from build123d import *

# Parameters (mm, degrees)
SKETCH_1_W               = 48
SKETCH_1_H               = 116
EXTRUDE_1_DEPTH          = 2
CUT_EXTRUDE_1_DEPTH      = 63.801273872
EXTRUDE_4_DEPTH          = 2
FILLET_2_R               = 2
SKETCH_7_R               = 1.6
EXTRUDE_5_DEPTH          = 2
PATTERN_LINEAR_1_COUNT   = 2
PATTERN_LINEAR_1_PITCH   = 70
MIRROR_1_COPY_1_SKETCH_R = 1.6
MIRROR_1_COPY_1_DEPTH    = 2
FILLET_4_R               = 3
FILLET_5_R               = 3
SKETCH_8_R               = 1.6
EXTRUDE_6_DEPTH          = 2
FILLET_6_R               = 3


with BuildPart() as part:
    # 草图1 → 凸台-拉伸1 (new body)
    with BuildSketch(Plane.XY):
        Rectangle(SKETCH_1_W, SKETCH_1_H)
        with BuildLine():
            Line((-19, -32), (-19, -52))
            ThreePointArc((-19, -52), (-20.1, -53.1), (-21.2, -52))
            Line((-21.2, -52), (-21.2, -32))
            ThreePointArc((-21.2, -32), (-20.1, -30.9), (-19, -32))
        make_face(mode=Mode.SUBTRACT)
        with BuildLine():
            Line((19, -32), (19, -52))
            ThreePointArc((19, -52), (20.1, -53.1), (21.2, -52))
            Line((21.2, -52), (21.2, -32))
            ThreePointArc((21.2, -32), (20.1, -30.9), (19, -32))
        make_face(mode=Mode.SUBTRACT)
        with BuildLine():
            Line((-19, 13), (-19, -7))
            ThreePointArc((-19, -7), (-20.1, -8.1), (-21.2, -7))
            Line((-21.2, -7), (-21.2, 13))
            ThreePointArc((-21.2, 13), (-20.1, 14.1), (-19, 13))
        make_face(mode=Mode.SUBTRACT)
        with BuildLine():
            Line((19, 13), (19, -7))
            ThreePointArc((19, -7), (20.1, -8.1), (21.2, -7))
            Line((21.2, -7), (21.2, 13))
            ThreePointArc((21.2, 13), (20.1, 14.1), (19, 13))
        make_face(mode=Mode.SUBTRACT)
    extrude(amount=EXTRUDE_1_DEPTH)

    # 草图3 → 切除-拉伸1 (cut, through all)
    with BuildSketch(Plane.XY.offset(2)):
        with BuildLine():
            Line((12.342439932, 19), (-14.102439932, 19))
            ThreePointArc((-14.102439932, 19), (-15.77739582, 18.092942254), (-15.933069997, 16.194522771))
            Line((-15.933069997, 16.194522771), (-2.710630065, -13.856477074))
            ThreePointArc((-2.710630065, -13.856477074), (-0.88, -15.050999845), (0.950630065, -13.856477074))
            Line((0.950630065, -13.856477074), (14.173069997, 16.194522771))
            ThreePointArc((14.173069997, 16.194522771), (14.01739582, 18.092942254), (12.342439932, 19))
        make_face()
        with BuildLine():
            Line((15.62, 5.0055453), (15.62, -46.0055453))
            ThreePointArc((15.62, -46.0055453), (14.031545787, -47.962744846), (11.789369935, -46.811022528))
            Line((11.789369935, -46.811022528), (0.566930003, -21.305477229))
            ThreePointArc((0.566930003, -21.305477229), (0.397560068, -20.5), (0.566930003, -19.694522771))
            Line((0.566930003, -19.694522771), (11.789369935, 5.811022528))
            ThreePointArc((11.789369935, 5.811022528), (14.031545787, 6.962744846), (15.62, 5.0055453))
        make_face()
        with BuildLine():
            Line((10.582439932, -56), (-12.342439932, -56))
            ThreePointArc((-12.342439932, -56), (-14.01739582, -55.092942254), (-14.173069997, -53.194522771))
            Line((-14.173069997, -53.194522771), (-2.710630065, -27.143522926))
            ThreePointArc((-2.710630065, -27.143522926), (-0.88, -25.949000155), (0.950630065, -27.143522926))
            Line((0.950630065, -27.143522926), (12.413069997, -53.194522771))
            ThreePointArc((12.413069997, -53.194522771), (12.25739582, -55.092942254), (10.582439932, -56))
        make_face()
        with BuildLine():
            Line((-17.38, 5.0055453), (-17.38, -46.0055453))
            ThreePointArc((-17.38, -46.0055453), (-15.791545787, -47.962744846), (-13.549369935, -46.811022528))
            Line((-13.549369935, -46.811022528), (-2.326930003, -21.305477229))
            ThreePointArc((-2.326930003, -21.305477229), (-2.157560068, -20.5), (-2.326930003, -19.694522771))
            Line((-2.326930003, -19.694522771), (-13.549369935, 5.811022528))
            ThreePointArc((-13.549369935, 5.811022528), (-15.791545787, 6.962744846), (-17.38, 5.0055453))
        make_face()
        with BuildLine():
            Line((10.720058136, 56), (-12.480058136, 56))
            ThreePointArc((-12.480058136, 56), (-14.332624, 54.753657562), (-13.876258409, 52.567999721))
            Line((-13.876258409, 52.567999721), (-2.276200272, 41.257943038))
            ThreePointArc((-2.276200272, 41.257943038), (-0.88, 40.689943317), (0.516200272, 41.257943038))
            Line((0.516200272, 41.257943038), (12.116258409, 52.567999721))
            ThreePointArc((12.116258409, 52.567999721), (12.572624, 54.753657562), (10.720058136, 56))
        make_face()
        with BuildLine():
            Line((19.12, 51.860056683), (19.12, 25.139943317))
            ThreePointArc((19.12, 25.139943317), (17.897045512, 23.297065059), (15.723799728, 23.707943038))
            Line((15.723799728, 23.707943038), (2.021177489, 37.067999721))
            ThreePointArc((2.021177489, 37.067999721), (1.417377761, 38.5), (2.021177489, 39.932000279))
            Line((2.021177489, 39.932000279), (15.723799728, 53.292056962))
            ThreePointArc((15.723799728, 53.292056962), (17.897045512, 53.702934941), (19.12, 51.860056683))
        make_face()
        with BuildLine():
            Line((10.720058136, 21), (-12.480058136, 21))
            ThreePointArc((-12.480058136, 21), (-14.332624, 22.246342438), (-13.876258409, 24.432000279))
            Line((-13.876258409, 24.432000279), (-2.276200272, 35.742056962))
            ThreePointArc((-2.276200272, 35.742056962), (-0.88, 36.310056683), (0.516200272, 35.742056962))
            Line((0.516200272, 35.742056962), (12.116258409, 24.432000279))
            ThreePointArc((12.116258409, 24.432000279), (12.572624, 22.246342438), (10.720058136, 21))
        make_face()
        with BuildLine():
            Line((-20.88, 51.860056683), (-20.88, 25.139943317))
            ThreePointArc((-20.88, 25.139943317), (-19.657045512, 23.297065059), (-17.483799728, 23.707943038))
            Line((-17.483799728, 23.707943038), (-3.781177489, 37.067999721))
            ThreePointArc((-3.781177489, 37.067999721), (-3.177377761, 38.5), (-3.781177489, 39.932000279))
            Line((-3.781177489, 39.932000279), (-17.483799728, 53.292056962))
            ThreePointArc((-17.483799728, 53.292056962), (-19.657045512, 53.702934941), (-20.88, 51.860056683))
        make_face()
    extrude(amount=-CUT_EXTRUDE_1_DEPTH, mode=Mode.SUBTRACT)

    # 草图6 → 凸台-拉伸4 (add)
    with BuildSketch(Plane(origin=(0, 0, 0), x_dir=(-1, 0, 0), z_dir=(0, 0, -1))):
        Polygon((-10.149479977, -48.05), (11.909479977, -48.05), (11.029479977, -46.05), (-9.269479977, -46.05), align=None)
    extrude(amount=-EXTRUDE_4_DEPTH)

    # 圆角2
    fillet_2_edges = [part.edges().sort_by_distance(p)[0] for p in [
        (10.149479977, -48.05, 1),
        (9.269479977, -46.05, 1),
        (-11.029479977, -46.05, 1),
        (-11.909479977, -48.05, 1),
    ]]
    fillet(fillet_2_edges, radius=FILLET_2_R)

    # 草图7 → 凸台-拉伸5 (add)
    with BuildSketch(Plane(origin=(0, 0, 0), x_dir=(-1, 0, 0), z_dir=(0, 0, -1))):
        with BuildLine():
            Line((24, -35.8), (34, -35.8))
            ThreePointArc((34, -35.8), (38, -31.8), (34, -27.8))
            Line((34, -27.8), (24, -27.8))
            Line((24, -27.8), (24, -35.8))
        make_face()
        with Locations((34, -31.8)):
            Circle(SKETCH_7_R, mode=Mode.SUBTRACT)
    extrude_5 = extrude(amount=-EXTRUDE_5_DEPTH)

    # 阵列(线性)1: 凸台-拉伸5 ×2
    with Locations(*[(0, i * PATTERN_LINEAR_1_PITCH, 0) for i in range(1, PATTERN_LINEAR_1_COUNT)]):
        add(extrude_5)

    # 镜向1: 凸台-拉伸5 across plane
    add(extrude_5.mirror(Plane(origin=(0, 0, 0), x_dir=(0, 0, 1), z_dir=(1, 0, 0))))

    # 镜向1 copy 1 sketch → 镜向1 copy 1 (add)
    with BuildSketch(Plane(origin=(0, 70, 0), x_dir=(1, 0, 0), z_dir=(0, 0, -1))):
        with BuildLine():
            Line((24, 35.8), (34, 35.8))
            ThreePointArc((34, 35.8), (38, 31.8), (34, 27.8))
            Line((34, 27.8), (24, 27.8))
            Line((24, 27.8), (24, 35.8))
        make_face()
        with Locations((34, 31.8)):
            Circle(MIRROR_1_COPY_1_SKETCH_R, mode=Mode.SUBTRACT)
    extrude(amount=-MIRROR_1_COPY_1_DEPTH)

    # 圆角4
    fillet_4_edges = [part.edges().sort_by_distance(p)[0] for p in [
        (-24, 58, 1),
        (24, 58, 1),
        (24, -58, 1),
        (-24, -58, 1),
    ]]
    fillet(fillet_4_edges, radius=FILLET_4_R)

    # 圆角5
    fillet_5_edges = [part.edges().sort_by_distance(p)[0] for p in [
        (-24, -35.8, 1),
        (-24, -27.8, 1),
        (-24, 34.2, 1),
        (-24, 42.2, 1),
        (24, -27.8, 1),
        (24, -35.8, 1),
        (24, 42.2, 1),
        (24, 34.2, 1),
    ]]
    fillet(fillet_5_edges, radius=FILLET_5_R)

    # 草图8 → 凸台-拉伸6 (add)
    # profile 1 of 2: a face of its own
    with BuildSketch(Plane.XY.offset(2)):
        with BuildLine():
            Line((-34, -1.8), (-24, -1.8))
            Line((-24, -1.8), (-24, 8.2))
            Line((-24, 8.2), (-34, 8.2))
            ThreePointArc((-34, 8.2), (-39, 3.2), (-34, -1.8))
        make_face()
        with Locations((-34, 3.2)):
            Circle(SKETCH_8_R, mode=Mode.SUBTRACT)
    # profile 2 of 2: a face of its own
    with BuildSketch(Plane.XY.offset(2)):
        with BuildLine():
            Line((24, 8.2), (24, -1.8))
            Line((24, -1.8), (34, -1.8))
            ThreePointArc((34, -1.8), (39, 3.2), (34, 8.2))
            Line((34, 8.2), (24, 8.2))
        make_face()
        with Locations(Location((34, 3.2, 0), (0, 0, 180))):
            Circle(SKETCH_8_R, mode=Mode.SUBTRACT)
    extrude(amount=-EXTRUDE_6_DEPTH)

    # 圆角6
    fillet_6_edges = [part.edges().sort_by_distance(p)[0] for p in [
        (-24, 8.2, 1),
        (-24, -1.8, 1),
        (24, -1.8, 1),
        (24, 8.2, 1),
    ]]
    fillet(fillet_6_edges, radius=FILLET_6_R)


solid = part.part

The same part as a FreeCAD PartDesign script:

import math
import FreeCAD as App
import Part
import Sketcher
from FreeCAD import Vector


def edges_at(feature, points):
    """Names of the edges that pass closest to the given points."""
    edges = feature.Shape.Edges
    near = lambda p: min(range(len(edges)), key=lambda i: edges[i].distToShape(Part.Vertex(*p))[0])
    return sorted({f"Edge{near(p) + 1}" for p in points})

doc = App.newDocument("Part")
body = doc.addObject("PartDesign::Body", "Body")

# Sketch on XY plane
sketch1 = body.newObject("Sketcher::SketchObject", "Sketch")
sketch1.AttachmentSupport = (doc.getObject("XY_Plane"), [""])
sketch1.MapMode = "FlatFace"
sketch1.addGeometry([
    Part.LineSegment(Vector(-24, 58, 0), Vector(-24, -58, 0)),  # 0
    Part.LineSegment(Vector(-24, -58, 0), Vector(24, -58, 0)),  # 1
    Part.LineSegment(Vector(24, -58, 0), Vector(24, 58, 0)),  # 2
    Part.LineSegment(Vector(24, 58, 0), Vector(-24, 58, 0)),  # 3
    Part.ArcOfCircle(Part.Circle(Vector(-20.1, -32, 0), Vector(0, 0, 1), 1.1), math.radians(0), math.radians(180)),  # 4
    Part.LineSegment(Vector(-19, -32, 0), Vector(-19, -52, 0)),  # 5
    Part.ArcOfCircle(Part.Circle(Vector(-20.1, -52, 0), Vector(0, 0, 1), 1.1), math.radians(180), math.radians(360)),  # 6
    Part.LineSegment(Vector(-21.2, -52, 0), Vector(-21.2, -32, 0)),  # 7
    Part.LineSegment(Vector(19, -52, 0), Vector(19, -32, 0)),  # 8
    Part.ArcOfCircle(Part.Circle(Vector(20.1, -32, 0), Vector(0, 0, 1), 1.1), math.radians(0), math.radians(180)),  # 9
    Part.LineSegment(Vector(21.2, -32, 0), Vector(21.2, -52, 0)),  # 10
    Part.ArcOfCircle(Part.Circle(Vector(20.1, -52, 0), Vector(0, 0, 1), 1.1), math.radians(180), math.radians(360)),  # 11
    Part.ArcOfCircle(Part.Circle(Vector(-20.1, 13, 0), Vector(0, 0, 1), 1.1), math.radians(0), math.radians(180)),  # 12
    Part.LineSegment(Vector(-19, 13, 0), Vector(-19, -7, 0)),  # 13
    Part.ArcOfCircle(Part.Circle(Vector(-20.1, -7, 0), Vector(0, 0, 1), 1.1), math.radians(180), math.radians(360)),  # 14
    Part.LineSegment(Vector(-21.2, -7, 0), Vector(-21.2, 13, 0)),  # 15
    Part.LineSegment(Vector(19, -7, 0), Vector(19, 13, 0)),  # 16
    Part.ArcOfCircle(Part.Circle(Vector(20.1, 13, 0), Vector(0, 0, 1), 1.1), math.radians(0), math.radians(180)),  # 17
    Part.LineSegment(Vector(21.2, 13, 0), Vector(21.2, -7, 0)),  # 18
    Part.ArcOfCircle(Part.Circle(Vector(20.1, -7, 0), Vector(0, 0, 1), 1.1), math.radians(180), math.radians(360)),  # 19
], False)
sketch1.addConstraint([
    Sketcher.Constraint("Coincident", 0, 2, 1, 1),
    Sketcher.Constraint("Coincident", 1, 2, 2, 1),
    Sketcher.Constraint("Coincident", 2, 2, 3, 1),
    Sketcher.Constraint("Coincident", 3, 2, 0, 1),
    Sketcher.Constraint("Tangent", 4, 1, 5, 1),
    Sketcher.Constraint("Tangent", 5, 2, 6, 2),
    Sketcher.Constraint("Tangent", 6, 1, 7, 1),
    Sketcher.Constraint("Tangent", 7, 2, 4, 2),
    Sketcher.Constraint("Tangent", 8, 2, 9, 2),
    Sketcher.Constraint("Tangent", 9, 1, 10, 1),
    Sketcher.Constraint("Tangent", 10, 2, 11, 2),
    Sketcher.Constraint("Tangent", 11, 1, 8, 1),
    Sketcher.Constraint("Tangent", 12, 1, 13, 1),
    Sketcher.Constraint("Tangent", 13, 2, 14, 2),
    Sketcher.Constraint("Tangent", 14, 1, 15, 1),
    Sketcher.Constraint("Tangent", 15, 2, 12, 2),
    Sketcher.Constraint("Tangent", 16, 2, 17, 2),
    Sketcher.Constraint("Tangent", 17, 1, 18, 1),
    Sketcher.Constraint("Tangent", 18, 2, 19, 2),
    Sketcher.Constraint("Tangent", 19, 1, 16, 1),
    Sketcher.Constraint("Vertical", 0),
    Sketcher.Constraint("Horizontal", 1),
    Sketcher.Constraint("Vertical", 2),
    Sketcher.Constraint("Horizontal", 3),
    Sketcher.Constraint("Vertical", 5),
    Sketcher.Constraint("Vertical", 7),
    Sketcher.Constraint("Vertical", 8),
    Sketcher.Constraint("Vertical", 10),
    Sketcher.Constraint("Vertical", 13),
    Sketcher.Constraint("Vertical", 15),
    Sketcher.Constraint("Vertical", 16),
    Sketcher.Constraint("Vertical", 18),
    Sketcher.Constraint("Equal", 6, 9),
    Sketcher.Constraint("Equal", 11, 12),
    Sketcher.Constraint("Equal", 14, 17),
    Sketcher.Constraint("Symmetric", 0, 2, 2, 2, -1, 1),
    Sketcher.Constraint("Symmetric", 4, 3, 9, 3, -2),
    Sketcher.Constraint("Symmetric", 12, 3, 17, 3, -2),
    Sketcher.Constraint("Horizontal", 6, 3, 11, 3),
    Sketcher.Constraint("Horizontal", 14, 3, 19, 3),
    Sketcher.Constraint("Vertical", 6, 3, 12, 3),
    Sketcher.Constraint("Equal", 10, 13),
    Sketcher.Constraint("Radius", 4, 1.1),
    Sketcher.Constraint("DistanceX", 1, 1, 1, 2, 48.0),
    Sketcher.Constraint("DistanceY", 0, 2, 0, 1, 116.0),
    Sketcher.Constraint("DistanceY", 5, 2, 5, 1, 20.0),
    Sketcher.Constraint("DistanceY", 4, 3, -1, 1, 32.0),
    Sketcher.Constraint("DistanceY", -1, 1, 12, 3, 13.0),
    Sketcher.Constraint("DistanceX", 4, 1, -1, 1, 19.0),
])
pad1 = body.newObject("PartDesign::Pad", "Pad")
pad1.Profile = sketch1
pad1.Length = 2

# Sketch on XY plane
sketch2 = body.newObject("Sketcher::SketchObject", "Sketch001")
sketch2.AttachmentSupport = (doc.getObject("XY_Plane"), [""])
sketch2.MapMode = "FlatFace"
sketch2.AttachmentOffset = App.Placement(Vector(0, 0, 2), App.Rotation())
sketch2.addGeometry([
    Part.LineSegment(Vector(12.3, 19, 0), Vector(-14.1, 19, 0)),  # 0
    Part.ArcOfCircle(Part.Circle(Vector(-14.1, 17, 0), Vector(0, 0, 1), 2), math.radians(90), math.radians(204)),  # 1
    Part.LineSegment(Vector(-15.9, 16.2, 0), Vector(-2.7, -13.9, 0)),  # 2
    Part.ArcOfCircle(Part.Circle(Vector(-0.9, -13.1, 0), Vector(0, 0, 1), 2), math.radians(-156), math.radians(-24)),  # 3
    Part.LineSegment(Vector(1, -13.9, 0), Vector(14.2, 16.2, 0)),  # 4
    Part.ArcOfCircle(Part.Circle(Vector(12.3, 17, 0), Vector(0, 0, 1), 2), math.radians(-24), math.radians(90)),  # 5
    Part.LineSegment(Vector(15.6, -46, 0), Vector(15.6, 5, 0)),  # 6
    Part.ArcOfCircle(Part.Circle(Vector(13.6, 5, 0), Vector(0, 0, 1), 2), math.radians(0), math.radians(156)),  # 7
    Part.LineSegment(Vector(11.8, 5.8, 0), Vector(0.6, -19.7, 0)),  # 8
    Part.ArcOfCircle(Part.Circle(Vector(2.4, -20.5, 0), Vector(0, 0, 1), 2), math.radians(156), math.radians(204)),  # 9
    Part.LineSegment(Vector(0.6, -21.3, 0), Vector(11.8, -46.8, 0)),  # 10
    Part.ArcOfCircle(Part.Circle(Vector(13.6, -46, 0), Vector(0, 0, 1), 2), math.radians(-156), math.radians(0)),  # 11
    Part.LineSegment(Vector(-12.3, -56, 0), Vector(10.6, -56, 0)),  # 12
    Part.ArcOfCircle(Part.Circle(Vector(10.6, -54, 0), Vector(0, 0, 1), 2), math.radians(-90), math.radians(24)),  # 13
    Part.LineSegment(Vector(12.4, -53.2, 0), Vector(1, -27.1, 0)),  # 14
    Part.ArcOfCircle(Part.Circle(Vector(-0.9, -27.9, 0), Vector(0, 0, 1), 2), math.radians(24), math.radians(156)),  # 15
    Part.LineSegment(Vector(-2.7, -27.1, 0), Vector(-14.2, -53.2, 0)),  # 16
    Part.ArcOfCircle(Part.Circle(Vector(-12.3, -54, 0), Vector(0, 0, 1), 2), math.radians(156), math.radians(270)),  # 17
    Part.LineSegment(Vector(-17.4, 5, 0), Vector(-17.4, -46, 0)),  # 18
    Part.ArcOfCircle(Part.Circle(Vector(-15.4, -46, 0), Vector(0, 0, 1), 2), math.radians(-180), math.radians(-24)),  # 19
    Part.LineSegment(Vector(-13.5, -46.8, 0), Vector(-2.3, -21.3, 0)),  # 20
    Part.ArcOfCircle(Part.Circle(Vector(-4.2, -20.5, 0), Vector(0, 0, 1), 2), math.radians(-24), math.radians(24)),  # 21
    Part.LineSegment(Vector(-2.3, -19.7, 0), Vector(-13.5, 5.8, 0)),  # 22
    Part.ArcOfCircle(Part.Circle(Vector(-15.4, 5, 0), Vector(0, 0, 1), 2), math.radians(24), math.radians(180)),  # 23
    Part.LineSegment(Vector(10.7, 56, 0), Vector(-12.5, 56, 0)),  # 24
    Part.ArcOfCircle(Part.Circle(Vector(-12.5, 54, 0), Vector(0, 0, 1), 2), math.radians(90), math.radians(226)),  # 25
    Part.LineSegment(Vector(-13.9, 52.6, 0), Vector(-2.3, 41.3, 0)),  # 26
    Part.ArcOfCircle(Part.Circle(Vector(-0.9, 42.7, 0), Vector(0, 0, 1), 2), math.radians(-134), math.radians(-46)),  # 27
    Part.LineSegment(Vector(0.5, 41.3, 0), Vector(12.1, 52.6, 0)),  # 28
    Part.ArcOfCircle(Part.Circle(Vector(10.7, 54, 0), Vector(0, 0, 1), 2), math.radians(-46), math.radians(90)),  # 29
    Part.LineSegment(Vector(19.1, 25.1, 0), Vector(19.1, 51.9, 0)),  # 30
    Part.ArcOfCircle(Part.Circle(Vector(17.1, 51.9, 0), Vector(0, 0, 1), 2), math.radians(0), math.radians(134)),  # 31
    Part.LineSegment(Vector(15.7, 53.3, 0), Vector(2, 39.9, 0)),  # 32
    Part.ArcOfCircle(Part.Circle(Vector(3.4, 38.5, 0), Vector(0, 0, 1), 2), math.radians(134), math.radians(226)),  # 33
    Part.LineSegment(Vector(2, 37.1, 0), Vector(15.7, 23.7, 0)),  # 34
    Part.ArcOfCircle(Part.Circle(Vector(17.1, 25.1, 0), Vector(0, 0, 1), 2), math.radians(-134), math.radians(0)),  # 35
    Part.LineSegment(Vector(-12.5, 21, 0), Vector(10.7, 21, 0)),  # 36
    Part.ArcOfCircle(Part.Circle(Vector(10.7, 23, 0), Vector(0, 0, 1), 2), math.radians(-90), math.radians(46)),  # 37
    Part.LineSegment(Vector(12.1, 24.4, 0), Vector(0.5, 35.7, 0)),  # 38
    Part.ArcOfCircle(Part.Circle(Vector(-0.9, 34.3, 0), Vector(0, 0, 1), 2), math.radians(46), math.radians(134)),  # 39
    Part.LineSegment(Vector(-2.3, 35.7, 0), Vector(-13.9, 24.4, 0)),  # 40
    Part.ArcOfCircle(Part.Circle(Vector(-12.5, 23, 0), Vector(0, 0, 1), 2), math.radians(134), math.radians(270)),  # 41
    Part.LineSegment(Vector(-20.9, 51.9, 0), Vector(-20.9, 25.1, 0)),  # 42
    Part.ArcOfCircle(Part.Circle(Vector(-18.9, 25.1, 0), Vector(0, 0, 1), 2), math.radians(180), math.radians(314)),  # 43
    Part.LineSegment(Vector(-17.5, 23.7, 0), Vector(-3.8, 37.1, 0)),  # 44
    Part.ArcOfCircle(Part.Circle(Vector(-5.2, 38.5, 0), Vector(0, 0, 1), 2), math.radians(-46), math.radians(46)),  # 45
    Part.LineSegment(Vector(-3.8, 39.9, 0), Vector(-17.5, 53.3, 0)),  # 46
    Part.ArcOfCircle(Part.Circle(Vector(-18.9, 51.9, 0), Vector(0, 0, 1), 2), math.radians(46), math.radians(180)),  # 47
], False)
sketch2.addConstraint([
    Sketcher.Constraint("Tangent", 0, 2, 1, 1),
    Sketcher.Constraint("Tangent", 1, 2, 2, 1),
    Sketcher.Constraint("Tangent", 2, 2, 3, 1),
    Sketcher.Constraint("Tangent", 3, 2, 4, 1),
    Sketcher.Constraint("Tangent", 4, 2, 5, 1),
    Sketcher.Constraint("Tangent", 5, 2, 0, 1),
    Sketcher.Constraint("Tangent", 6, 2, 7, 1),
    Sketcher.Constraint("Tangent", 7, 2, 8, 1),
    Sketcher.Constraint("Tangent", 8, 2, 9, 1),
    Sketcher.Constraint("Tangent", 9, 2, 10, 1),
    Sketcher.Constraint("Tangent", 10, 2, 11, 1),
    Sketcher.Constraint("Tangent", 11, 2, 6, 1),
    Sketcher.Constraint("Tangent", 12, 2, 13, 1),
    Sketcher.Constraint("Tangent", 13, 2, 14, 1),
    Sketcher.Constraint("Tangent", 14, 2, 15, 1),
    Sketcher.Constraint("Tangent", 15, 2, 16, 1),
    Sketcher.Constraint("Tangent", 16, 2, 17, 1),
    Sketcher.Constraint("Tangent", 17, 2, 12, 1),
    Sketcher.Constraint("Tangent", 18, 2, 19, 1),
    Sketcher.Constraint("Tangent", 19, 2, 20, 1),
    Sketcher.Constraint("Tangent", 20, 2, 21, 1),
    Sketcher.Constraint("Tangent", 21, 2, 22, 1),
    Sketcher.Constraint("Tangent", 22, 2, 23, 1),
    Sketcher.Constraint("Tangent", 23, 2, 18, 1),
    Sketcher.Constraint("Tangent", 24, 2, 25, 1),
    Sketcher.Constraint("Tangent", 25, 2, 26, 1),
    Sketcher.Constraint("Tangent", 26, 2, 27, 1),
    Sketcher.Constraint("Tangent", 27, 2, 28, 1),
    Sketcher.Constraint("Tangent", 28, 2, 29, 1),
    Sketcher.Constraint("Tangent", 29, 2, 24, 1),
    Sketcher.Constraint("Tangent", 30, 2, 31, 1),
    Sketcher.Constraint("Tangent", 31, 2, 32, 1),
    Sketcher.Constraint("Tangent", 32, 2, 33, 1),
    Sketcher.Constraint("Tangent", 33, 2, 34, 1),
    Sketcher.Constraint("Tangent", 34, 2, 35, 1),
    Sketcher.Constraint("Tangent", 35, 2, 30, 1),
    Sketcher.Constraint("Tangent", 36, 2, 37, 1),
    Sketcher.Constraint("Tangent", 37, 2, 38, 1),
    Sketcher.Constraint("Tangent", 38, 2, 39, 1),
    Sketcher.Constraint("Tangent", 39, 2, 40, 1),
    Sketcher.Constraint("Tangent", 40, 2, 41, 1),
    Sketcher.Constraint("Tangent", 41, 2, 36, 1),
    Sketcher.Constraint("Tangent", 42, 2, 43, 1),
    Sketcher.Constraint("Tangent", 43, 2, 44, 1),
    Sketcher.Constraint("Tangent", 44, 2, 45, 1),
    Sketcher.Constraint("Tangent", 45, 2, 46, 1),
    Sketcher.Constraint("Tangent", 46, 2, 47, 1),
    Sketcher.Constraint("Tangent", 47, 2, 42, 1),
    Sketcher.Constraint("Horizontal", 0),
    Sketcher.Constraint("Vertical", 6),
    Sketcher.Constraint("Horizontal", 12),
    Sketcher.Constraint("Vertical", 18),
    Sketcher.Constraint("Horizontal", 24),
    Sketcher.Constraint("Vertical", 30),
    Sketcher.Constraint("Horizontal", 36),
    Sketcher.Constraint("Vertical", 42),
    Sketcher.Constraint("Equal", 1, 3),
    Sketcher.Constraint("Equal", 3, 5),
    Sketcher.Constraint("Equal", 5, 7),
    Sketcher.Constraint("Equal", 7, 9),
    Sketcher.Constraint("Equal", 9, 11),
    Sketcher.Constraint("Equal", 11, 13),
    Sketcher.Constraint("Equal", 13, 15),
    Sketcher.Constraint("Equal", 15, 17),
    Sketcher.Constraint("Equal", 17, 19),
    Sketcher.Constraint("Equal", 19, 21),
    Sketcher.Constraint("Equal", 21, 23),
    Sketcher.Constraint("Equal", 23, 25),
    Sketcher.Constraint("Equal", 25, 27),
    Sketcher.Constraint("Equal", 27, 29),
    Sketcher.Constraint("Equal", 29, 31),
    Sketcher.Constraint("Equal", 31, 33),
    Sketcher.Constraint("Equal", 33, 35),
    Sketcher.Constraint("Equal", 35, 37),
    Sketcher.Constraint("Equal", 37, 39),
    Sketcher.Constraint("Equal", 39, 41),
    Sketcher.Constraint("Equal", 41, 43),
    Sketcher.Constraint("Equal", 43, 45),
    Sketcher.Constraint("Equal", 45, 47),
    Sketcher.Constraint("Parallel", 4, 8),
    Sketcher.Constraint("Parallel", 2, 10),
    Sketcher.Constraint("Parallel", 10, 14),
    Sketcher.Constraint("Parallel", 8, 16),
    Sketcher.Constraint("Parallel", 16, 20),
    Sketcher.Constraint("Parallel", 14, 22),
    Sketcher.Constraint("Parallel", 28, 32),
    Sketcher.Constraint("Parallel", 26, 34),
    Sketcher.Constraint("Parallel", 34, 38),
    Sketcher.Constraint("Parallel", 32, 40),
    Sketcher.Constraint("Parallel", 40, 44),
    Sketcher.Constraint("Parallel", 38, 46),
    Sketcher.Constraint("Horizontal", 11, 3, 19, 3),
    Sketcher.Constraint("Horizontal", 9, 3, 21, 3),
    Sketcher.Constraint("Horizontal", 7, 3, 23, 3),
    Sketcher.Constraint("Horizontal", 35, 3, 43, 3),
    Sketcher.Constraint("Horizontal", 33, 3, 45, 3),
    Sketcher.Constraint("Horizontal", 31, 3, 47, 3),
    Sketcher.Constraint("Vertical", 3, 3, 15, 3),
    Sketcher.Constraint("Vertical", 15, 3, 27, 3),
    Sketcher.Constraint("Vertical", 29, 3, 37, 3),
    Sketcher.Constraint("Vertical", 27, 3, 39, 3),
    Sketcher.Constraint("Radius", 1, 2.0),
    Sketcher.Constraint("DistanceY", -1, 1, 1, 3, 17.0),
    Sketcher.Constraint("DistanceY", 13, 3, -1, 1, 54.0),
    Sketcher.Constraint("DistanceY", -1, 1, 25, 3, 54.0),
    Sketcher.Constraint("DistanceY", -1, 1, 37, 3, 23.0),
    Sketcher.Constraint("DistanceY", 9, 3, -1, 1, 20.5),
    Sketcher.Constraint("DistanceY", -1, 1, 33, 3, 38.5),
    Sketcher.Constraint("DistanceX", 3, 3, -1, 1, 0.88),
    Sketcher.Constraint("DistanceX", -1, 1, 7, 3, 13.62),
    Sketcher.Constraint("DistanceX", 19, 3, -1, 1, 15.38),
    Sketcher.Constraint("DistanceX", -1, 1, 31, 3, 17.12),
    Sketcher.Constraint("DistanceX", 43, 3, -1, 1, 18.88),
    Sketcher.Constraint("DistanceY", 3, 3, -1, 1, 13.051),
    Sketcher.Constraint("DistanceY", 15, 3, -1, 1, 27.949),
    Sketcher.Constraint("DistanceY", -1, 1, 25, 2, 52.568),
    Sketcher.Constraint("DistanceX", 0, 2, 0, 1, 26.44488),
    Sketcher.Constraint("DistanceY", 6, 1, 6, 2, 51.011091),
    Sketcher.Constraint("DistanceX", 24, 2, 24, 1, 23.200116),
    Sketcher.Constraint("DistanceY", 30, 1, 30, 2, 26.720113),
])
pocket1 = body.newObject("PartDesign::Pocket", "Pocket")
pocket1.Profile = sketch2
pocket1.Type = "ThroughAll"

# Sketch on XY plane
sketch3 = body.newObject("Sketcher::SketchObject", "Sketch002")
sketch3.AttachmentSupport = (doc.getObject("XY_Plane"), [""])
sketch3.MapMode = "FlatFace"
sketch3.addGeometry([
    Part.LineSegment(Vector(10.1, -48, 0), Vector(-11.9, -48, 0)),
    Part.LineSegment(Vector(-11.9, -48, 0), Vector(-11, -46, 0)),
    Part.LineSegment(Vector(-11, -46, 0), Vector(9.3, -46, 0)),
    Part.LineSegment(Vector(9.3, -46, 0), Vector(10.1, -48, 0)),
], False)
sketch3.addConstraint([
    Sketcher.Constraint("Coincident", 0, 2, 1, 1),
    Sketcher.Constraint("Coincident", 1, 2, 2, 1),
    Sketcher.Constraint("Coincident", 2, 2, 3, 1),
    Sketcher.Constraint("Coincident", 3, 2, 0, 1),
    Sketcher.Constraint("Horizontal", 0),
    Sketcher.Constraint("Horizontal", 2),
    Sketcher.Constraint("Equal", 1, 3),
    Sketcher.Constraint("DistanceY", 0, 2, 1, 2, 2.0),
    Sketcher.Constraint("DistanceY", 0, 2, -1, 1, 48.05),
    Sketcher.Constraint("DistanceX", 0, 2, 1, 2, 0.88),
    Sketcher.Constraint("DistanceX", 0, 2, 0, 1, 22.05896),
    Sketcher.Constraint("DistanceX", 0, 2, -1, 1, 11.90948),
])
pad2 = body.newObject("PartDesign::Pad", "Pad001")
pad2.Profile = sketch3
pad2.Length = 2
doc.recompute()

fillet = body.newObject("PartDesign::Fillet", "Fillet")
fillet.Base = (pad2, edges_at(pad2, [
    (10.149, -48.05, 1),
    (9.269, -46.05, 1),
    (-11.029, -46.05, 1),
    (-11.909, -48.05, 1),
]))
fillet.Radius = 2

# Sketch on XY plane
sketch4 = body.newObject("Sketcher::SketchObject", "Sketch003")
sketch4.AttachmentSupport = (doc.getObject("XY_Plane"), [""])
sketch4.MapMode = "FlatFace"
sketch4.addGeometry([
    Part.LineSegment(Vector(-24, -35.8, 0), Vector(-34, -35.8, 0)),  # 0
    Part.ArcOfCircle(Part.Circle(Vector(-34, -31.8, 0), Vector(0, 0, 1), 4), math.radians(90), math.radians(270)),  # 1
    Part.LineSegment(Vector(-34, -27.8, 0), Vector(-24, -27.8, 0)),  # 2
    Part.LineSegment(Vector(-24, -27.8, 0), Vector(-24, -35.8, 0)),  # 3
    Part.Circle(Vector(-34, -31.8, 0), Vector(0, 0, 1), 1.6),  # 4
], False)
sketch4.addConstraint([
    Sketcher.Constraint("Tangent", 0, 2, 1, 2),
    Sketcher.Constraint("Tangent", 1, 1, 2, 1),
    Sketcher.Constraint("Coincident", 2, 2, 3, 1),
    Sketcher.Constraint("Coincident", 3, 2, 0, 1),
    Sketcher.Constraint("Horizontal", 0),
    Sketcher.Constraint("Horizontal", 2),
    Sketcher.Constraint("Vertical", 3),
    Sketcher.Constraint("Coincident", 4, 3, 1, 3),
    Sketcher.Constraint("Radius", 1, 4.0),
    Sketcher.Constraint("Diameter", 4, 3.2),
    Sketcher.Constraint("DistanceX", 0, 2, 0, 1, 10.0),
    Sketcher.Constraint("DistanceX", 1, 3, -1, 1, 34.0),
    Sketcher.Constraint("DistanceY", 1, 3, -1, 1, 31.8),
])
pad3 = body.newObject("PartDesign::Pad", "Pad002")
pad3.Profile = sketch4
pad3.Length = 2
doc.recompute()

linearpattern = body.newObject("PartDesign::LinearPattern", "LinearPattern")
linearpattern.Originals = [pad3]
linearpattern.Direction = (doc.getObject("Y_Axis"), [""])
linearpattern.Mode = "offset"
linearpattern.Offset = 70
linearpattern.Occurrences = 2
body.Tip = linearpattern
doc.recompute()

mirrored = body.newObject("PartDesign::Mirrored", "Mirrored")
mirrored.Originals = [pad3]
mirrored.MirrorPlane = (doc.getObject("YZ_Plane"), [""])
body.Tip = mirrored

# Sketch on XY plane
sketch5 = body.newObject("Sketcher::SketchObject", "Sketch004")
sketch5.AttachmentSupport = (doc.getObject("XY_Plane"), [""])
sketch5.MapMode = "FlatFace"
sketch5.addGeometry([
    Part.LineSegment(Vector(34, 34.2, 0), Vector(24, 34.2, 0)),  # 0
    Part.LineSegment(Vector(24, 34.2, 0), Vector(24, 42.2, 0)),  # 1
    Part.LineSegment(Vector(24, 42.2, 0), Vector(34, 42.2, 0)),  # 2
    Part.ArcOfCircle(Part.Circle(Vector(34, 38.2, 0), Vector(0, 0, 1), 4), math.radians(-90), math.radians(90)),  # 3
    Part.Circle(Vector(34, 38.2, 0), Vector(0, 0, 1), 1.6),  # 4
], False)
sketch5.addConstraint([
    Sketcher.Constraint("Coincident", 0, 2, 1, 1),
    Sketcher.Constraint("Coincident", 1, 2, 2, 1),
    Sketcher.Constraint("Tangent", 2, 2, 3, 2),
    Sketcher.Constraint("Tangent", 3, 1, 0, 1),
    Sketcher.Constraint("Horizontal", 0),
    Sketcher.Constraint("Vertical", 1),
    Sketcher.Constraint("Horizontal", 2),
    Sketcher.Constraint("Coincident", 4, 3, 3, 3),
    Sketcher.Constraint("Radius", 3, 4.0),
    Sketcher.Constraint("Diameter", 4, 3.2),
    Sketcher.Constraint("DistanceX", 0, 2, 0, 1, 10.0),
    Sketcher.Constraint("DistanceX", -1, 1, 3, 3, 34.0),
    Sketcher.Constraint("DistanceY", -1, 1, 3, 3, 38.2),
])
pad4 = body.newObject("PartDesign::Pad", "Pad003")
pad4.Profile = sketch5
pad4.Length = 2
doc.recompute()

fillet2 = body.newObject("PartDesign::Fillet", "Fillet001")
fillet2.Base = (pad4, edges_at(pad4, [
    (-24, 58, 1),
    (24, 58, 1),
    (24, -58, 1),
    (-24, -58, 1),
]))
fillet2.Radius = 3
doc.recompute()

fillet3 = body.newObject("PartDesign::Fillet", "Fillet002")
fillet3.Base = (fillet2, edges_at(fillet2, [
    (-24, -35.8, 1),
    (-24, -27.8, 1),
    (-24, 34.2, 1),
    (-24, 42.2, 1),
    (24, -27.8, 1),
    (24, -35.8, 1),
    (24, 42.2, 1),
    (24, 34.2, 1),
]))
fillet3.Radius = 3

# Sketch on XY plane
sketch6 = body.newObject("Sketcher::SketchObject", "Sketch005")
sketch6.AttachmentSupport = (doc.getObject("XY_Plane"), [""])
sketch6.MapMode = "FlatFace"
sketch6.AttachmentOffset = App.Placement(Vector(0, 0, 2), App.Rotation())
sketch6.addGeometry([
    Part.LineSegment(Vector(-34, -1.8, 0), Vector(-24, -1.8, 0)),  # 0
    Part.LineSegment(Vector(-24, -1.8, 0), Vector(-24, 8.2, 0)),  # 1
    Part.LineSegment(Vector(-24, 8.2, 0), Vector(-34, 8.2, 0)),  # 2
    Part.ArcOfCircle(Part.Circle(Vector(-34, 3.2, 0), Vector(0, 0, 1), 5), math.radians(90), math.radians(270)),  # 3
    Part.Circle(Vector(-34, 3.2, 0), Vector(0, 0, 1), 1.6),  # 4
    Part.LineSegment(Vector(24, 8.2, 0), Vector(24, -1.8, 0)),  # 5
    Part.LineSegment(Vector(24, -1.8, 0), Vector(34, -1.8, 0)),  # 6
    Part.ArcOfCircle(Part.Circle(Vector(34, 3.2, 0), Vector(0, 0, 1), 5), math.radians(-90), math.radians(90)),  # 7
    Part.LineSegment(Vector(34, 8.2, 0), Vector(24, 8.2, 0)),  # 8
    Part.Circle(Vector(34, 3.2, 0), Vector(0, 0, 1), 1.6),  # 9
], False)
sketch6.addConstraint([
    Sketcher.Constraint("Coincident", 0, 2, 1, 1),
    Sketcher.Constraint("Coincident", 1, 2, 2, 1),
    Sketcher.Constraint("Tangent", 2, 2, 3, 1),
    Sketcher.Constraint("Tangent", 3, 2, 0, 1),
    Sketcher.Constraint("Coincident", 5, 2, 6, 1),
    Sketcher.Constraint("Tangent", 6, 2, 7, 1),
    Sketcher.Constraint("Tangent", 7, 2, 8, 1),
    Sketcher.Constraint("Coincident", 8, 2, 5, 1),
    Sketcher.Constraint("Horizontal", 0),
    Sketcher.Constraint("Vertical", 1),
    Sketcher.Constraint("Horizontal", 2),
    Sketcher.Constraint("Vertical", 5),
    Sketcher.Constraint("Horizontal", 6),
    Sketcher.Constraint("Horizontal", 8),
    Sketcher.Constraint("Coincident", 4, 3, 3, 3),
    Sketcher.Constraint("Coincident", 9, 3, 7, 3),
    Sketcher.Constraint("Equal", 3, 7),
    Sketcher.Constraint("Equal", 4, 9),
    Sketcher.Constraint("Symmetric", 3, 3, 7, 3, -2),
    Sketcher.Constraint("Equal", 2, 6),
    Sketcher.Constraint("Equal", 8, 1),
    Sketcher.Constraint("Radius", 3, 5.0),
    Sketcher.Constraint("Diameter", 4, 3.2),
    Sketcher.Constraint("DistanceX", 3, 3, -1, 1, 34.0),
    Sketcher.Constraint("DistanceY", -1, 1, 3, 3, 3.2),
])
pad5 = body.newObject("PartDesign::Pad", "Pad004")
pad5.Profile = sketch6
pad5.Length = 2
pad5.Reversed = True
doc.recompute()

fillet4 = body.newObject("PartDesign::Fillet", "Fillet003")
fillet4.Base = (pad5, edges_at(pad5, [
    (-24, 8.2, 1),
    (-24, -1.8, 1),
    (24, -1.8, 1),
    (24, 8.2, 1),
]))
fillet4.Radius = 3

doc.recompute()
